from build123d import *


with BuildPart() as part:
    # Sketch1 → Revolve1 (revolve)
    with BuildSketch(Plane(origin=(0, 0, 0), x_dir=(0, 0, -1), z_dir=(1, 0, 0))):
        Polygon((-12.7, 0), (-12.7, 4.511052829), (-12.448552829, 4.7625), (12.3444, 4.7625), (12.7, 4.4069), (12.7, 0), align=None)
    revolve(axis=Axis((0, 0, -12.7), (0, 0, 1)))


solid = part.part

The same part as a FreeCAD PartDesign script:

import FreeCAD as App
import Part
import Sketcher
from FreeCAD import Vector
Q = App.Units.Quantity


def add_polygon(sketch, points):
    """Adds a closed chain of lines whose ends are joined by coincident constraints."""
    first, n = sketch.GeometryCount, len(points)
    for a, b in zip(points, points[1:] + points[:1]):
        sketch.addGeometry(Part.LineSegment(App.Vector(*a, 0), App.Vector(*b, 0)), False)
    for i in range(n):
        sketch.addConstraint(Sketcher.Constraint("Coincident", first + i, 2, first + (i + 1) % n, 1))

doc = App.newDocument("Part")
body = doc.addObject("PartDesign::Body", "Body")

# Sketch on YZ plane
sketch1 = body.newObject("Sketcher::SketchObject", "Sketch")
sketch1.AttachmentSupport = (doc.getObject("YZ_Plane"), [""])
sketch1.MapMode = "FlatFace"
add_polygon(sketch1, [(4.51, 12.7), (0, 12.7), (0, -12.7), (4.41, -12.7), (4.76, -12.34), (4.76, 12.45)])  # lines 0-5
sketch1.addConstraint(Sketcher.Constraint("Horizontal", 0))
sketch1.addConstraint(Sketcher.Constraint("Vertical", 1))
sketch1.addConstraint(Sketcher.Constraint("Horizontal", 2))
sketch1.addConstraint(Sketcher.Constraint("Vertical", 4))
sketch1.addConstraint(Sketcher.Constraint("Symmetric", 0, 2, 1, 2, -1, 1))
sketch1.addConstraint(Sketcher.Constraint("Perpendicular", 3, 5))
sketch1.addConstraint(Sketcher.Constraint("DistanceY", 1, 2, 1, 1, Q("1 in")))
sketch1.addConstraint(Sketcher.Constraint("Angle", 3, Q("45 deg")))
sketch1.addConstraint(Sketcher.Constraint("Distance", 5, Q("0.014 in")))
sketch1.addConstraint(Sketcher.Constraint("DistanceX", 2, 1, 2, 2, Q("0.1735 in")))
sketch1.addConstraint(Sketcher.Constraint("DistanceX", -1, 1, 3, 2, Q("0.1875 in")))
revolution = body.newObject("PartDesign::Revolution", "Revolution")
revolution.Profile = sketch1
revolution.ReferenceAxis = (sketch1, ["V_Axis"])
revolution.Angle = 360

doc.recompute()
